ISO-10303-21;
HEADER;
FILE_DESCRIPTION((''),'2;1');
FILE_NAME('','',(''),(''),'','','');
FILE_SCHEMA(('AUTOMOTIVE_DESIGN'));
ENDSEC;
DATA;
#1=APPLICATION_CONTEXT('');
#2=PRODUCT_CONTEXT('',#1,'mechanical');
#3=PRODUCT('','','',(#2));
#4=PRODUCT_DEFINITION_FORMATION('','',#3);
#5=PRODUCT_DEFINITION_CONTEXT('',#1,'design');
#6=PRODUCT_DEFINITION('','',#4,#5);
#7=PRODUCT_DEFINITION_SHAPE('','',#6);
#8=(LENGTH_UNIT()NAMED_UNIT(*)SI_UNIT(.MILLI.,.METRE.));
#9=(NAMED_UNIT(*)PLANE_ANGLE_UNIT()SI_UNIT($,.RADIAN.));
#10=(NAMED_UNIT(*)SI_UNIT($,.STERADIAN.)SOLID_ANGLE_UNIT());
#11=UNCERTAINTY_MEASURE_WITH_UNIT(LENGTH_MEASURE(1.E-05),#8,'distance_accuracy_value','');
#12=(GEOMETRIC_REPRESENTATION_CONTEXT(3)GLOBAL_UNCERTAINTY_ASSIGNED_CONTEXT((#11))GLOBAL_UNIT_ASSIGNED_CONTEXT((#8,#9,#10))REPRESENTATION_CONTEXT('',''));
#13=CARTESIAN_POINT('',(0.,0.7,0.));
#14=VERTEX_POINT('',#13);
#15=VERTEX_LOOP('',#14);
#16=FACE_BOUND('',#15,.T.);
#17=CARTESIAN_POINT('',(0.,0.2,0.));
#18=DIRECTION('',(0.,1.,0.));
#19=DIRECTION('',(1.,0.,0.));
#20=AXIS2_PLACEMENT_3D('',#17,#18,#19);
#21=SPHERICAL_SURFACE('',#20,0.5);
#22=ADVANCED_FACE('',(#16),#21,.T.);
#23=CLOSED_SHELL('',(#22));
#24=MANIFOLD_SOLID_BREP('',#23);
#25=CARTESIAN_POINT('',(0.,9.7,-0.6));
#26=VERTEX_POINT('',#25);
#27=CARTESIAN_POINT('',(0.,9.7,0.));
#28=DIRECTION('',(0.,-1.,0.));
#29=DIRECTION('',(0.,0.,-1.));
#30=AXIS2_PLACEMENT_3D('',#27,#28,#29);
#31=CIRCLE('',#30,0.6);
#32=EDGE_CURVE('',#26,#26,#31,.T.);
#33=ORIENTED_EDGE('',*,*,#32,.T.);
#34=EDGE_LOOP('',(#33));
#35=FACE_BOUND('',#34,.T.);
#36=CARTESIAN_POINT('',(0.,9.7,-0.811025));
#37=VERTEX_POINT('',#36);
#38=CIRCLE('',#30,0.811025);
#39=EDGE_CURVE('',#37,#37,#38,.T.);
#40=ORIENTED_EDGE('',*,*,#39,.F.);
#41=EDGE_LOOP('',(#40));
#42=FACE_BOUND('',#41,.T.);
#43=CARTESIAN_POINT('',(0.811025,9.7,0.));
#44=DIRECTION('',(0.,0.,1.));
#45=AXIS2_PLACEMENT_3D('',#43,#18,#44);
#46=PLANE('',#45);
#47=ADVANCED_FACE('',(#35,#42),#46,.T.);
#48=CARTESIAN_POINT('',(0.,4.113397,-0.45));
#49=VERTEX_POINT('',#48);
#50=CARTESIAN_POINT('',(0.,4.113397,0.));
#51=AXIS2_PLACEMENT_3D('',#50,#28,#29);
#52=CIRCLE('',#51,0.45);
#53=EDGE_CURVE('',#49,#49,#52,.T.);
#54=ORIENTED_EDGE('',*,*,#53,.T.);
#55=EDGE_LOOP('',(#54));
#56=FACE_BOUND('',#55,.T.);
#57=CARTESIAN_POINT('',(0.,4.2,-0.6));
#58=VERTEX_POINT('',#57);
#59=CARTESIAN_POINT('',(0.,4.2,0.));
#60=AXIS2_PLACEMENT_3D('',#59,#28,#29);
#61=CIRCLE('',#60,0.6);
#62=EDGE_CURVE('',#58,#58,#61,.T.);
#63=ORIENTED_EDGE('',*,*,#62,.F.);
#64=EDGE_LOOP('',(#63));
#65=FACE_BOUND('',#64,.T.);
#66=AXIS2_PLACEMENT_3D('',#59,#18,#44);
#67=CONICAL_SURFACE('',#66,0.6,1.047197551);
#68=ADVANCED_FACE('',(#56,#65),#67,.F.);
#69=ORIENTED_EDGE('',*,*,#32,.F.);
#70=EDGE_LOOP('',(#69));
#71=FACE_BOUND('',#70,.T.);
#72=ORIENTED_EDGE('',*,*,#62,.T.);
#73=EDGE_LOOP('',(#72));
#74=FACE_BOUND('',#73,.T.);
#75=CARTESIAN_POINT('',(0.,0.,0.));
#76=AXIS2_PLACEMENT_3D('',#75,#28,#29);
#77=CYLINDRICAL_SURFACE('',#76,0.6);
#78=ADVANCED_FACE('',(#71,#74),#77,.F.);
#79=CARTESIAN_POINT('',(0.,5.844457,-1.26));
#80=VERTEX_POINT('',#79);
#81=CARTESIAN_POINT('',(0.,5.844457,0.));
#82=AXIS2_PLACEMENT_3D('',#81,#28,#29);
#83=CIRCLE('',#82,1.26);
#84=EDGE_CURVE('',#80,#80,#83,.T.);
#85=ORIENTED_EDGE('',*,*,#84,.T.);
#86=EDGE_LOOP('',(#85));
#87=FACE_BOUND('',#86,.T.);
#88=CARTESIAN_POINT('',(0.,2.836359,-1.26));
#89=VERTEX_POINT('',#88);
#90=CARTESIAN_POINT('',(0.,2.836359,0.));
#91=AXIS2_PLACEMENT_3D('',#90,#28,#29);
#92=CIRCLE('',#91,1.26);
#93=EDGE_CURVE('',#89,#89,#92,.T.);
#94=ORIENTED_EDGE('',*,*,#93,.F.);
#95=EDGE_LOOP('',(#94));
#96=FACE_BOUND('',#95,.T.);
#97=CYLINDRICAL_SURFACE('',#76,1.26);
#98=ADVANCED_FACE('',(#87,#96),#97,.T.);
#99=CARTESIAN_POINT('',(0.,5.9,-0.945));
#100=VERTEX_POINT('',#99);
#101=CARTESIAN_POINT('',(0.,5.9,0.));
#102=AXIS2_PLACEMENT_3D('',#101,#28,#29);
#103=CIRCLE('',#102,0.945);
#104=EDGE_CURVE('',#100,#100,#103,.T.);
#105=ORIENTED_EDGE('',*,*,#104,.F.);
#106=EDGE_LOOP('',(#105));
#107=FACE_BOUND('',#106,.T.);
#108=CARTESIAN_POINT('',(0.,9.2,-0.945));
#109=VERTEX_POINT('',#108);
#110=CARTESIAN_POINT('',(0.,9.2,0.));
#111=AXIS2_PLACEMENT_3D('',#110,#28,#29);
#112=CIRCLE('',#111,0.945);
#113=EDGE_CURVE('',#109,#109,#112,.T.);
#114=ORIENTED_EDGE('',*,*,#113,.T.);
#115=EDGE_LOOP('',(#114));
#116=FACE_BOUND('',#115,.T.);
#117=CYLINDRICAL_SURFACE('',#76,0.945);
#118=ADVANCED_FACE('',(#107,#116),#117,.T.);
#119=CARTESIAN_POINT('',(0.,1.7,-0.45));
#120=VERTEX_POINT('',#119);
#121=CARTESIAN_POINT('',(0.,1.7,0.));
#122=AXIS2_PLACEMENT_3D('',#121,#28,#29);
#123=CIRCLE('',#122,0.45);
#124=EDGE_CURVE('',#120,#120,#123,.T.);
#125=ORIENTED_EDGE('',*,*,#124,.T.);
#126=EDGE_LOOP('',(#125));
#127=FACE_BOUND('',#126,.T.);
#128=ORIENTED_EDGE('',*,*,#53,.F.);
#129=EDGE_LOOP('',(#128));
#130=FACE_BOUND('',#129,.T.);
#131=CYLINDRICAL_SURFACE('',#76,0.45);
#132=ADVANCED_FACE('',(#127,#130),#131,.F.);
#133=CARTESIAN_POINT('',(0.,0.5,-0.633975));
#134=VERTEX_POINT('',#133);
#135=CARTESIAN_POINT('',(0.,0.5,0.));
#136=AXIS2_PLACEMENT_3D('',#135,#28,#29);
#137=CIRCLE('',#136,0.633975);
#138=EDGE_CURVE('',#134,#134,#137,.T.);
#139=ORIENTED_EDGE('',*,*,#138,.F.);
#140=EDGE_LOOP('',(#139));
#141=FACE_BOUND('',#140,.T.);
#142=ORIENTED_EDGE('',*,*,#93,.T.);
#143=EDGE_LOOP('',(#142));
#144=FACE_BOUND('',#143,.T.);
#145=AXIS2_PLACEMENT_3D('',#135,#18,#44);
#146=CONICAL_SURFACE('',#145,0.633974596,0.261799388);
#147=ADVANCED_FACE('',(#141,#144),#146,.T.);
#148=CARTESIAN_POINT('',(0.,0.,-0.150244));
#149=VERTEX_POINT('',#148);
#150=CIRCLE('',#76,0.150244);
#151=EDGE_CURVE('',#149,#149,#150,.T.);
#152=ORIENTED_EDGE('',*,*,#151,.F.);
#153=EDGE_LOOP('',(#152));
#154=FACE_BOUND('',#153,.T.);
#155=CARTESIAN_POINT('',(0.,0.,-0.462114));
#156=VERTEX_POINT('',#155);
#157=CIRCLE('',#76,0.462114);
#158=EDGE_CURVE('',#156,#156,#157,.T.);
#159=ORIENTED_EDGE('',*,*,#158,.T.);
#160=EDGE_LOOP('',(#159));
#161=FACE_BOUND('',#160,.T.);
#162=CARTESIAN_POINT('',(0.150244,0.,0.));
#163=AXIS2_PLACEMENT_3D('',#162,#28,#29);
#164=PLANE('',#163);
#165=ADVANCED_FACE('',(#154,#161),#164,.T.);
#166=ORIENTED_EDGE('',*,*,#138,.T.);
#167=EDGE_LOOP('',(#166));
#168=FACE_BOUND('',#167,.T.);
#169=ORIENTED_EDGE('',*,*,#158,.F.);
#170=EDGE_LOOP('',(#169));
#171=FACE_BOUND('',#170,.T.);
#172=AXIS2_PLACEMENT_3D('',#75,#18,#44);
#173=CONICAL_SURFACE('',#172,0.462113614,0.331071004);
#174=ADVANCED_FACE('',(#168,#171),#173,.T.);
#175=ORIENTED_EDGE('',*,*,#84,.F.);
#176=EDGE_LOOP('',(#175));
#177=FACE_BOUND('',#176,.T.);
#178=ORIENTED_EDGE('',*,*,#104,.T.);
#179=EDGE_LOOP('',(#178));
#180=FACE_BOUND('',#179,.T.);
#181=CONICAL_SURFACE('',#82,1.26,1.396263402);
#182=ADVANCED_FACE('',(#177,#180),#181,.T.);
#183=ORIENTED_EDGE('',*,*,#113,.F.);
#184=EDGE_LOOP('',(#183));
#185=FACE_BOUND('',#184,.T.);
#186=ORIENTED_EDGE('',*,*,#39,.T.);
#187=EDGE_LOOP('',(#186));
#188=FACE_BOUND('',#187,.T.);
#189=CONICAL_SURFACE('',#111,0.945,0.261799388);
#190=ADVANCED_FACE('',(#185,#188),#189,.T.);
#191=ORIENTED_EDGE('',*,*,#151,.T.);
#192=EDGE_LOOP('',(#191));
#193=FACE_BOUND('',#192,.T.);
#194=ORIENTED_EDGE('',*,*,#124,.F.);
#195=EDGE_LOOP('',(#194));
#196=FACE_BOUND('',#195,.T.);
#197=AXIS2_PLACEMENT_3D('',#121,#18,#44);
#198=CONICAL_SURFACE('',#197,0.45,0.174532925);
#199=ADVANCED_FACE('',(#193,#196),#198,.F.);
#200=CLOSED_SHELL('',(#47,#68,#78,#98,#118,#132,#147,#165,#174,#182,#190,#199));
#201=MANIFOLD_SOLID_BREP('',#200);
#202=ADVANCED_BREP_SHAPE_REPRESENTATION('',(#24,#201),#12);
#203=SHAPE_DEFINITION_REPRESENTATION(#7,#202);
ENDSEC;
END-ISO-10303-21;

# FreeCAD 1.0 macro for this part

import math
import FreeCAD as App
import Part
import Sketcher
from FreeCAD import Vector
Q = App.Units.Quantity


def add_polygon(sketch, points):
    """Adds a closed chain of lines whose ends are joined by coincident constraints."""
    first, n = sketch.GeometryCount, len(points)
    for a, b in zip(points, points[1:] + points[:1]):
        sketch.addGeometry(Part.LineSegment(App.Vector(*a, 0), App.Vector(*b, 0)), False)
    for i in range(n):
        sketch.addConstraint(Sketcher.Constraint("Coincident", first + i, 2, first + (i + 1) % n, 1))

doc = App.newDocument("Part")
body = doc.addObject("PartDesign::Body", "Body")

sketch1 = body.newObject("Sketcher::SketchObject", "Sketch")
sketch1.AttachmentSupport = (doc.getObject("XY_Plane"), [""])
sketch1.MapMode = "FlatFace"
add_polygon(sketch1, [(0.63, 0.5), (1.26, 2.84), (1.26, 5.84), (0.94, 5.9), (0.94, 9.2), (0.81, 9.7), (0.6, 9.7), (0.6, 4.2), (0.45, 4.11), (0.45, 1.7), (0.15, 0), (0.46, 0)])
sketch1.addConstraint(Sketcher.Constraint("Vertical", 1))
sketch1.addConstraint(Sketcher.Constraint("Vertical", 3))
sketch1.addConstraint(Sketcher.Constraint("Horizontal", 5))
sketch1.addConstraint(Sketcher.Constraint("Vertical", 6))
sketch1.addConstraint(Sketcher.Constraint("Vertical", 8))
sketch1.addConstraint(Sketcher.Constraint("Horizontal", 10))
sketch1.addConstraint(Sketcher.Constraint("PointOnObject", 9, 2, -1))
sketch1.addConstraint(Sketcher.Constraint("Perpendicular", 2, 9))
sketch1.addConstraint(Sketcher.Constraint("Angle", 0, Q("75 deg")))
sketch1.addConstraint(Sketcher.Constraint("Angle", 2, Q("170 deg")))
sketch1.addConstraint(Sketcher.Constraint("Angle", 4, Q("105 deg")))
sketch1.addConstraint(Sketcher.Constraint("Angle", 7, Q("-150 deg")))
sketch1.addConstraint(Sketcher.Constraint("DistanceY", 3, 1, 3, 2, 3.3))
sketch1.addConstraint(Sketcher.Constraint("DistanceY", 6, 2, 6, 1, 5.5))
sketch1.addConstraint(Sketcher.Constraint("DistanceY", 6, 2, 3, 2, 5.0))
sketch1.addConstraint(Sketcher.Constraint("DistanceY", -1, 1, 2, 2, 5.9))
sketch1.addConstraint(Sketcher.Constraint("DistanceX", -1, 1, 5, 2, 0.6))
sketch1.addConstraint(Sketcher.Constraint("DistanceY", -1, 1, 8, 2, 1.7))
sketch1.addConstraint(Sketcher.Constraint("DistanceY", -1, 1, 11, 2, 0.5))
sketch1.addConstraint(Sketcher.Constraint("DistanceX", -1, 1, 0, 2, 1.26))
sketch1.addConstraint(Sketcher.Constraint("DistanceX", -1, 1, 7, 2, 0.45))
sketch1.addConstraint(Sketcher.Constraint("DistanceY", 1, 1, 1, 2, 3.008098))
sketch1.addConstraint(Sketcher.Constraint("DistanceX", -1, 1, 2, 2, 0.945))
sketch1.addConstraint(Sketcher.Constraint("DistanceX", 10, 1, 10, 2, 0.311869))
revolution = body.newObject("PartDesign::Revolution", "Revolution")
revolution.Profile = sketch1
revolution.ReferenceAxis = (sketch1, ["V_Axis"])
revolution.Angle = 360
body2 = doc.addObject("PartDesign::Body", "Body001")

sketch2 = body2.newObject("Sketcher::SketchObject", "Sketch001")
sketch2.AttachmentSupport = (doc.getObject("XY_Plane001"), [""])
sketch2.MapMode = "FlatFace"
sketch2.addGeometry(Part.LineSegment(Vector(0, 0.7, 0), Vector(0, -0.3, 0)), False)
sketch2.addGeometry(Part.ArcOfCircle(Part.Circle(Vector(0, 0.2, 0), Vector(0, 0, 1), 0.5), math.radians(-90), math.radians(90)), False)
sketch2.addConstraint(Sketcher.Constraint("Coincident", 0, 1, 1, 2))
sketch2.addConstraint(Sketcher.Constraint("Coincident", 1, 1, 0, 2))
sketch2.addConstraint(Sketcher.Constraint("Vertical", 0))
sketch2.addConstraint(Sketcher.Constraint("PointOnObject", 1, 3, -2))
sketch2.addConstraint(Sketcher.Constraint("PointOnObject", 0, 1, -2))
sketch2.addConstraint(Sketcher.Constraint("Radius", 1, 0.5))
sketch2.addConstraint(Sketcher.Constraint("DistanceY", -1, 1, 1, 3, 0.2))
revolution2 = body2.newObject("PartDesign::Revolution", "Revolution001")
revolution2.Profile = sketch2
revolution2.ReferenceAxis = (sketch2, ["V_Axis"])
revolution2.Angle = 360

doc.recompute()
